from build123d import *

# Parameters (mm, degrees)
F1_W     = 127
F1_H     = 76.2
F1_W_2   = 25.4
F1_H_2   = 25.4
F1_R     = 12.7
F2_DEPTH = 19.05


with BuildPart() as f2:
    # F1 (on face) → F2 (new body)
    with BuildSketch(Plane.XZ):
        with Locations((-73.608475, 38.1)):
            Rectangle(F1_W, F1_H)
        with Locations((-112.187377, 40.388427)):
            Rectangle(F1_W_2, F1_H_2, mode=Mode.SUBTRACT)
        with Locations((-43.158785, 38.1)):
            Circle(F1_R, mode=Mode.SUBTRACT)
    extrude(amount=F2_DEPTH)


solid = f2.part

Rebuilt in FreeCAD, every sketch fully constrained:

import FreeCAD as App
import Part
import Sketcher

V = App.Vector
Q = App.Units.Quantity


def add_polygon(sketch, points):
    """Adds a closed chain of lines whose ends are joined by coincident constraints."""
    first, n = sketch.GeometryCount, len(points)
    for a, b in zip(points, points[1:] + points[:1]):
        sketch.addGeometry(Part.LineSegment(App.Vector(*a, 0), App.Vector(*b, 0)), False)
    for i in range(n):
        sketch.addConstraint(Sketcher.Constraint("Coincident", first + i, 2, first + (i + 1) % n, 1))

doc = App.newDocument("Part")
body = doc.addObject("PartDesign::Body", "Body")

sketch1 = body.newObject("Sketcher::SketchObject", "Sketch")
sketch1.AttachmentSupport = (doc.getObject("XZ_Plane"), [""])
sketch1.MapMode = "FlatFace"
add_polygon(sketch1, [(-137.108475, 76.2), (-137.108475, 0), (-10.108475, 0), (-10.108475, 76.2)])
sketch1.addGeometry(Part.Circle(V(-43.158785, 38.1, 0), V(0, 0, 1), 12.7), False)
add_polygon(sketch1, [(-99.487377, 27.688427), (-124.887377, 27.688427), (-124.887377, 53.088427), (-99.487377, 53.088427)])
sketch1.addConstraint(Sketcher.Constraint("Vertical", 0))
sketch1.addConstraint(Sketcher.Constraint("Horizontal", 1))
sketch1.addConstraint(Sketcher.Constraint("Vertical", 2))
sketch1.addConstraint(Sketcher.Constraint("Horizontal", 3))
sketch1.addConstraint(Sketcher.Constraint("Horizontal", 5))
sketch1.addConstraint(Sketcher.Constraint("Vertical", 6))
sketch1.addConstraint(Sketcher.Constraint("Horizontal", 7))
sketch1.addConstraint(Sketcher.Constraint("Vertical", 8))
sketch1.addConstraint(Sketcher.Constraint("PointOnObject", 0, 2, -1))
sketch1.addConstraint(Sketcher.Constraint("Equal", 7, 6))
sketch1.addConstraint(Sketcher.Constraint("Diameter", 4, Q("1 in")))
sketch1.addConstraint(Sketcher.Constraint("DistanceX", 1, 1, 1, 2, Q("5 in")))
sketch1.addConstraint(Sketcher.Constraint("DistanceX", 5, 2, 5, 1, Q("1 in")))
sketch1.addConstraint(Sketcher.Constraint("DistanceY", 0, 2, 0, 1, Q("3 in")))
sketch1.addConstraint(Sketcher.Constraint("DistanceY", -1, 1, 4, 3, Q("1.5 in")))
sketch1.addConstraint(Sketcher.Constraint("DistanceX", 3, 2, 7, 2, 37.621098))
sketch1.addConstraint(Sketcher.Constraint("DistanceX", 0, 2, 4, 3, 93.94969))
sketch1.addConstraint(Sketcher.Constraint("DistanceX", 4, 3, -1, 1, 43.158785))
sketch1.addConstraint(Sketcher.Constraint("DistanceY", -1, 1, 5, 2, 27.688427))
pad1 = body.newObject("PartDesign::Pad", "Pad")
pad1.Profile = sketch1
pad1.Length = Q("0.75 in")

doc.recompute()
